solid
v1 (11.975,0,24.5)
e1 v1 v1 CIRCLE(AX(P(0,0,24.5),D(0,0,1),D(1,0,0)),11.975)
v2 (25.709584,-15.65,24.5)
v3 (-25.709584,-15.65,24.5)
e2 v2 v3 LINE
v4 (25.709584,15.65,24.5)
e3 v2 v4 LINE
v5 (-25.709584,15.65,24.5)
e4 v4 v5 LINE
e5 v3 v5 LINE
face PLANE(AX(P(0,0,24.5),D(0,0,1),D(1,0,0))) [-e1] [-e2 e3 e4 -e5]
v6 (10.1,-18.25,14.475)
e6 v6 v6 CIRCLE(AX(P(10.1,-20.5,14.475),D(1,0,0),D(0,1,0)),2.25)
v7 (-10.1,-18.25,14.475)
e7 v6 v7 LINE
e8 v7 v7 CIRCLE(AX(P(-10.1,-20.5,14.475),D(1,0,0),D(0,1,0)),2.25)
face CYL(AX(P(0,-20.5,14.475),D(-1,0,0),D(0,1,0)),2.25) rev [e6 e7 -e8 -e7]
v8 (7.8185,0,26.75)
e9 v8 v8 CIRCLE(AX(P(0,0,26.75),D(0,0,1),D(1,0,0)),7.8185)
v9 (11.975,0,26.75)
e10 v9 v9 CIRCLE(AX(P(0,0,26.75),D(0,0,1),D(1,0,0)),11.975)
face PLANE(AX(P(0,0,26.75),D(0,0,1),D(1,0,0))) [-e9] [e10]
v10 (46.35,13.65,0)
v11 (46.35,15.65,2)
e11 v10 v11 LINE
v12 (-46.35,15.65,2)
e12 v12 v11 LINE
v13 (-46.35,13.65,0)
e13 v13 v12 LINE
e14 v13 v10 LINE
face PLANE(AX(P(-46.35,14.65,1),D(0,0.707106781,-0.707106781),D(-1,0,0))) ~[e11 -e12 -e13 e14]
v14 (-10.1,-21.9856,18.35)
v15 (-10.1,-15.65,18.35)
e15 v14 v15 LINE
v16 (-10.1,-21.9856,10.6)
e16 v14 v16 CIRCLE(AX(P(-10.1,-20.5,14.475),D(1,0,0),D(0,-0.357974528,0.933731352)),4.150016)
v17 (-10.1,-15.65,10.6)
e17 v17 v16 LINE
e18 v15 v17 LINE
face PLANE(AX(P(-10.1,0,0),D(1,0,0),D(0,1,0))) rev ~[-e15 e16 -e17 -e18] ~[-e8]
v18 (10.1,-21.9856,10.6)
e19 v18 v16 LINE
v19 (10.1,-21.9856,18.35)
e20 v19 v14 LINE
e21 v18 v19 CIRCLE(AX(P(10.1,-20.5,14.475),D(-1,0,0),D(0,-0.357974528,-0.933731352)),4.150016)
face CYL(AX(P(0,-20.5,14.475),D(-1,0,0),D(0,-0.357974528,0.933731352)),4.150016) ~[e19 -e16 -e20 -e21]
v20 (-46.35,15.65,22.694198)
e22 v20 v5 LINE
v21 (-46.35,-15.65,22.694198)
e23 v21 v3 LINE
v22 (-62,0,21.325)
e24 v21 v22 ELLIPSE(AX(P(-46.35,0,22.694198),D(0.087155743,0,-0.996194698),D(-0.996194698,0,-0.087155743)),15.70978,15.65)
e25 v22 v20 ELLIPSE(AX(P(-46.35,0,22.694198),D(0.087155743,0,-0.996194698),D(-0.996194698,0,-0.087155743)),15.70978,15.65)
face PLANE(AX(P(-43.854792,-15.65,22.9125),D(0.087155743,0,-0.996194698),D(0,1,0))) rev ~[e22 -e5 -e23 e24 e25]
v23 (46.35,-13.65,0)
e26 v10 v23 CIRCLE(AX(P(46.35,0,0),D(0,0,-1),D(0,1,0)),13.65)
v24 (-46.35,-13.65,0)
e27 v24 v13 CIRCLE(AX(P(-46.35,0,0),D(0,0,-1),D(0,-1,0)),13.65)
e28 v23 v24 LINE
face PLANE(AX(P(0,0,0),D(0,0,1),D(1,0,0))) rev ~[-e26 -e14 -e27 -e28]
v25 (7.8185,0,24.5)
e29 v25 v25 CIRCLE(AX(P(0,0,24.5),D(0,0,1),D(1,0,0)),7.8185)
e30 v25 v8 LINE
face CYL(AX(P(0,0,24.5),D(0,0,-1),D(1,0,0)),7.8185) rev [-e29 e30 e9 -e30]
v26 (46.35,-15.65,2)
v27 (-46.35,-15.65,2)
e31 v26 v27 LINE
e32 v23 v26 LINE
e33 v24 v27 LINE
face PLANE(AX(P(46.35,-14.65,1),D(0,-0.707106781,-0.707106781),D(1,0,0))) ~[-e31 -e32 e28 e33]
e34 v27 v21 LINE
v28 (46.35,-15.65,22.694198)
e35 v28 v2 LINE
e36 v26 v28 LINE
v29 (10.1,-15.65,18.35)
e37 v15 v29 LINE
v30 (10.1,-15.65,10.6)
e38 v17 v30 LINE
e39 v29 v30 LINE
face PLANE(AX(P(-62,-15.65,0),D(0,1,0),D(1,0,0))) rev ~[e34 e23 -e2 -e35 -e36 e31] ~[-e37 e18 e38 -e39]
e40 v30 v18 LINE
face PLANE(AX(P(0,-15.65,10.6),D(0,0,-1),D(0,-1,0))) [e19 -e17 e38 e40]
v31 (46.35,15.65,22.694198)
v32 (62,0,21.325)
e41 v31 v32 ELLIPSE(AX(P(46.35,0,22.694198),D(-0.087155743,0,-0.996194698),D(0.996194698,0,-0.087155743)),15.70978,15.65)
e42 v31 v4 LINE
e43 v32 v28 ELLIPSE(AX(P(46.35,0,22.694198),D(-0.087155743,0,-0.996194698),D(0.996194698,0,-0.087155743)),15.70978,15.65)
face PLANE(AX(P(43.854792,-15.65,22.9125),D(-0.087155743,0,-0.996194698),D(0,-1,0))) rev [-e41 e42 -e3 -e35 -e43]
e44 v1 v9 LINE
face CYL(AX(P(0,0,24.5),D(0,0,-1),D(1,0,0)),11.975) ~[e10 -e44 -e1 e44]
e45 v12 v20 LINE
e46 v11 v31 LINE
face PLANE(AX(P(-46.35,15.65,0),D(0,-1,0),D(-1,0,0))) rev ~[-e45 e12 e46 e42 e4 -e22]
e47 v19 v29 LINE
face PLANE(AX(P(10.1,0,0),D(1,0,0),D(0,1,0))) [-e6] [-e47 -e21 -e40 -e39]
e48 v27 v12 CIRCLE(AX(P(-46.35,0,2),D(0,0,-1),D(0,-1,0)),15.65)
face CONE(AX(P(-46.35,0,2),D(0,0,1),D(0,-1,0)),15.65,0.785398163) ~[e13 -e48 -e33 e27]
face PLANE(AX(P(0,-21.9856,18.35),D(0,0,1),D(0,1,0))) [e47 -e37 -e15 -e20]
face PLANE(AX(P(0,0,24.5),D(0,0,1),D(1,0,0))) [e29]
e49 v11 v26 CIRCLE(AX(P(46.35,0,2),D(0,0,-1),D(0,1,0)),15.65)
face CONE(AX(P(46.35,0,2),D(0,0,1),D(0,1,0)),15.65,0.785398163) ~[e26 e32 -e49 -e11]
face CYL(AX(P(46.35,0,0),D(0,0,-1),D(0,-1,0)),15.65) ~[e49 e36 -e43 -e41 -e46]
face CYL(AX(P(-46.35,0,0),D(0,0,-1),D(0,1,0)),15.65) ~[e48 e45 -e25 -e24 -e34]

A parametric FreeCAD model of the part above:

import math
import FreeCAD as App
import Part
import Sketcher


def edges_at(feature, points):
    """Names of the edges that pass closest to the given points."""
    edges = feature.Shape.Edges
    near = lambda p: min(range(len(edges)), key=lambda i: edges[i].distToShape(Part.Vertex(*p))[0])
    return sorted({f"Edge{near(p) + 1}" for p in points})


def add_polygon(sketch, points):
    """Adds a closed chain of lines whose ends are joined by coincident constraints."""
    first, n = sketch.GeometryCount, len(points)
    for a, b in zip(points, points[1:] + points[:1]):
        sketch.addGeometry(Part.LineSegment(App.Vector(*a, 0), App.Vector(*b, 0)), False)
    for i in range(n):
        sketch.addConstraint(Sketcher.Constraint("Coincident", first + i, 2, first + (i + 1) % n, 1))

doc = App.newDocument("Part")
body = doc.addObject("PartDesign::Body", "Body")

# Sketch on XY plane
sketch1 = body.newObject("Sketcher::SketchObject", "Sketch")
sketch1.AttachmentSupport = (doc.getObject("XY_Plane"), [""])
sketch1.MapMode = "FlatFace"
add_polygon(sketch1, [(-62, -15.65), (62, -15.65), (62, 15.65), (-62, 15.65)])  # lines 0-3
sketch1.addConstraint(Sketcher.Constraint("Horizontal", 0))
sketch1.addConstraint(Sketcher.Constraint("Vertical", 1))
sketch1.addConstraint(Sketcher.Constraint("Horizontal", 2))
sketch1.addConstraint(Sketcher.Constraint("Vertical", 3))
sketch1.addConstraint(Sketcher.Constraint("Symmetric", 0, 2, 2, 2, -1, 1))
sketch1.addConstraint(Sketcher.Constraint("DistanceX", 0, 1, 0, 2, 124.0))
sketch1.addConstraint(Sketcher.Constraint("DistanceY", 1, 1, 1, 2, 31.3))
pad1 = body.newObject("PartDesign::Pad", "Pad")
pad1.Profile = sketch1
pad1.Length = 24.5

# Sketch on XY plane
sketch2 = body.newObject("Sketcher::SketchObject", "Sketch001")
sketch2.AttachmentSupport = (doc.getObject("XY_Plane"), [""])
sketch2.MapMode = "FlatFace"
sketch2.AttachmentOffset = App.Placement(App.Vector(0, 0, 24.5), App.Rotation())
sketch2.addGeometry(Part.Circle(App.Vector(0, 0, 0), App.Vector(0, 0, 1), 11.975), False)
sketch2.addGeometry(Part.Circle(App.Vector(0, 0, 0), App.Vector(0, 0, 1), 7.8185), False)
sketch2.addConstraint(Sketcher.Constraint("Coincident", 0, 3, -1, 1))
sketch2.addConstraint(Sketcher.Constraint("Coincident", 1, 3, -1, 1))
sketch2.addConstraint(Sketcher.Constraint("Diameter", 0, 23.95))
sketch2.addConstraint(Sketcher.Constraint("Diameter", 1, 15.637))
pad2 = body.newObject("PartDesign::Pad", "Pad001")
pad2.Profile = sketch2
pad2.Length = 2.25
doc.recompute()

chamfer = body.newObject("PartDesign::Chamfer", "Chamfer")
chamfer.Base = (pad2, edges_at(pad2, [(62, 0, 24.5)]))
chamfer.ChamferType = "Distance and Angle"
chamfer.Size = 3.175
chamfer.Angle = 85
doc.recompute()

chamfer2 = body.newObject("PartDesign::Chamfer", "Chamfer001")
chamfer2.Base = (chamfer, edges_at(chamfer, [(-62, 0, 24.5)]))
chamfer2.ChamferType = "Distance and Angle"
chamfer2.Size = 3.175
chamfer2.Angle = 85
chamfer2.FlipDirection = True

# Sketch on XY plane
sketch3 = body.newObject("Sketcher::SketchObject", "Sketch002")
sketch3.AttachmentSupport = (doc.getObject("XY_Plane"), [""])
sketch3.MapMode = "FlatFace"
sketch3.addGeometry(Part.LineSegment(App.Vector(-62, 0, 0), App.Vector(-62, -15.65, 0)), False)
sketch3.addGeometry(Part.LineSegment(App.Vector(-62, -15.65, 0), App.Vector(-46.35, -15.65, 0)), False)
sketch3.addGeometry(Part.ArcOfCircle(Part.Circle(App.Vector(-46.35, 0, 0), App.Vector(0, 0, 1), 15.65), math.radians(180), math.radians(270)), False)
sketch3.addGeometry(Part.LineSegment(App.Vector(-62, 15.65, 0), App.Vector(-62, 0, 0)), False)
sketch3.addGeometry(Part.ArcOfCircle(Part.Circle(App.Vector(-46.35, 0, 0), App.Vector(0, 0, 1), 15.65), math.radians(90), math.radians(180)), False)
sketch3.addGeometry(Part.LineSegment(App.Vector(-46.35, 15.65, 0), App.Vector(-62, 15.65, 0)), False)
sketch3.addGeometry(Part.ArcOfCircle(Part.Circle(App.Vector(46.35, 0, 0), App.Vector(0, 0, 1), 15.65), math.radians(-90), math.radians(0)), False)
sketch3.addGeometry(Part.LineSegment(App.Vector(46.35, -15.65, 0), App.Vector(62, -15.65, 0)), False)
sketch3.addGeometry(Part.LineSegment(App.Vector(62, -15.65, 0), App.Vector(62, 0, 0)), False)
sketch3.addGeometry(Part.ArcOfCircle(Part.Circle(App.Vector(46.35, 0, 0), App.Vector(0, 0, 1), 15.65), math.radians(0), math.radians(90)), False)
sketch3.addGeometry(Part.LineSegment(App.Vector(62, 0, 0), App.Vector(62, 15.65, 0)), False)
sketch3.addGeometry(Part.LineSegment(App.Vector(62, 15.65, 0), App.Vector(46.35, 15.65, 0)), False)
sketch3.addConstraint(Sketcher.Constraint("Coincident", 0, 2, 1, 1))
sketch3.addConstraint(Sketcher.Constraint("Tangent", 1, 2, 2, 2))
sketch3.addConstraint(Sketcher.Constraint("Tangent", 2, 1, 0, 1))
sketch3.addConstraint(Sketcher.Constraint("Tangent", 3, 2, 4, 2))
sketch3.addConstraint(Sketcher.Constraint("Tangent", 4, 1, 5, 1))
sketch3.addConstraint(Sketcher.Constraint("Coincident", 5, 2, 3, 1))
sketch3.addConstraint(Sketcher.Constraint("Tangent", 6, 1, 7, 1))
sketch3.addConstraint(Sketcher.Constraint("Coincident", 7, 2, 8, 1))
sketch3.addConstraint(Sketcher.Constraint("Tangent", 8, 2, 6, 2))
sketch3.addConstraint(Sketcher.Constraint("Tangent", 9, 1, 10, 1))
sketch3.addConstraint(Sketcher.Constraint("Coincident", 10, 2, 11, 1))
sketch3.addConstraint(Sketcher.Constraint("Tangent", 11, 2, 9, 2))
sketch3.addConstraint(Sketcher.Constraint("Vertical", 0))
sketch3.addConstraint(Sketcher.Constraint("Horizontal", 1))
sketch3.addConstraint(Sketcher.Constraint("Vertical", 3))
sketch3.addConstraint(Sketcher.Constraint("Horizontal", 5))
sketch3.addConstraint(Sketcher.Constraint("Horizontal", 7))
sketch3.addConstraint(Sketcher.Constraint("Vertical", 8))
sketch3.addConstraint(Sketcher.Constraint("Vertical", 10))
sketch3.addConstraint(Sketcher.Constraint("Horizontal", 11))
sketch3.addConstraint(Sketcher.Constraint("Coincident", 4, 3, 2, 3))
sketch3.addConstraint(Sketcher.Constraint("Coincident", 9, 3, 6, 3))
sketch3.addConstraint(Sketcher.Constraint("Equal", 2, 4))
sketch3.addConstraint(Sketcher.Constraint("Equal", 4, 6))
sketch3.addConstraint(Sketcher.Constraint("Equal", 6, 9))
sketch3.addConstraint(Sketcher.Constraint("Symmetric", 2, 3, 6, 3, -1, 1))
sketch3.addConstraint(Sketcher.Constraint("PointOnObject", 2, 3, -1))
sketch3.addConstraint(Sketcher.Constraint("Radius", 2, 15.65))
sketch3.addConstraint(Sketcher.Constraint("DistanceX", 0, 2, -1, 1, 62.0))
pocket1 = body.newObject("PartDesign::Pocket", "Pocket")
pocket1.Profile = sketch3
pocket1.Length = 24.5
pocket1.Reversed = True
doc.recompute()

chamfer3 = body.newObject("PartDesign::Chamfer", "Chamfer002")
chamfer3.Base = (pocket1, edges_at(pocket1, [(62, 0, 0), (-62, 0, 0)]))
chamfer3.Size = 2

# Sketch on YZ plane
sketch4 = body.newObject("Sketcher::SketchObject", "Sketch003")
sketch4.AttachmentSupport = (doc.getObject("YZ_Plane"), [""])
sketch4.MapMode = "FlatFace"
sketch4.addGeometry(Part.LineSegment(App.Vector(-21.9856, 10.6, 0), App.Vector(-15.65, 10.6, 0)), False)
sketch4.addGeometry(Part.LineSegment(App.Vector(-15.65, 10.6, 0), App.Vector(-15.65, 18.35, 0)), False)
sketch4.addGeometry(Part.LineSegment(App.Vector(-15.65, 18.35, 0), App.Vector(-21.9856, 18.35, 0)), False)
sketch4.addGeometry(Part.ArcOfCircle(Part.Circle(App.Vector(-20.5, 14.475, 0), App.Vector(0, 0, 1), 4.150016), math.radians(110.975857), math.radians(249.024143)), False)
sketch4.addGeometry(Part.Circle(App.Vector(-20.5, 14.475, 0), App.Vector(0, 0, 1), 2.25), False)
sketch4.addConstraint(Sketcher.Constraint("Coincident", 0, 2, 1, 1))
sketch4.addConstraint(Sketcher.Constraint("Coincident", 1, 2, 2, 1))
sketch4.addConstraint(Sketcher.Constraint("Coincident", 2, 2, 3, 1))
sketch4.addConstraint(Sketcher.Constraint("Coincident", 3, 2, 0, 1))
sketch4.addConstraint(Sketcher.Constraint("Horizontal", 0))
sketch4.addConstraint(Sketcher.Constraint("Vertical", 1))
sketch4.addConstraint(Sketcher.Constraint("Horizontal", 2))
sketch4.addConstraint(Sketcher.Constraint("Coincident", 4, 3, 3, 3))
sketch4.addConstraint(Sketcher.Constraint("Vertical", 2, 2, 3, 2))
sketch4.addConstraint(Sketcher.Constraint("Diameter", 4, 4.5))
sketch4.addConstraint(Sketcher.Constraint("DistanceY", 1, 1, 1, 2, 7.75))
sketch4.addConstraint(Sketcher.Constraint("DistanceY", -1, 1, 0, 2, 10.6))
sketch4.addConstraint(Sketcher.Constraint("Radius", 3, 4.15))
sketch4.addConstraint(Sketcher.Constraint("DistanceX", 3, 3, -1, 1, 20.5))
sketch4.addConstraint(Sketcher.Constraint("DistanceX", 0, 2, -1, 1, 15.65))
pad3 = body.newObject("PartDesign::Pad", "Pad002")
pad3.Profile = sketch4
pad3.Length = 20.2
pad3.Midplane = True

doc.recompute()
